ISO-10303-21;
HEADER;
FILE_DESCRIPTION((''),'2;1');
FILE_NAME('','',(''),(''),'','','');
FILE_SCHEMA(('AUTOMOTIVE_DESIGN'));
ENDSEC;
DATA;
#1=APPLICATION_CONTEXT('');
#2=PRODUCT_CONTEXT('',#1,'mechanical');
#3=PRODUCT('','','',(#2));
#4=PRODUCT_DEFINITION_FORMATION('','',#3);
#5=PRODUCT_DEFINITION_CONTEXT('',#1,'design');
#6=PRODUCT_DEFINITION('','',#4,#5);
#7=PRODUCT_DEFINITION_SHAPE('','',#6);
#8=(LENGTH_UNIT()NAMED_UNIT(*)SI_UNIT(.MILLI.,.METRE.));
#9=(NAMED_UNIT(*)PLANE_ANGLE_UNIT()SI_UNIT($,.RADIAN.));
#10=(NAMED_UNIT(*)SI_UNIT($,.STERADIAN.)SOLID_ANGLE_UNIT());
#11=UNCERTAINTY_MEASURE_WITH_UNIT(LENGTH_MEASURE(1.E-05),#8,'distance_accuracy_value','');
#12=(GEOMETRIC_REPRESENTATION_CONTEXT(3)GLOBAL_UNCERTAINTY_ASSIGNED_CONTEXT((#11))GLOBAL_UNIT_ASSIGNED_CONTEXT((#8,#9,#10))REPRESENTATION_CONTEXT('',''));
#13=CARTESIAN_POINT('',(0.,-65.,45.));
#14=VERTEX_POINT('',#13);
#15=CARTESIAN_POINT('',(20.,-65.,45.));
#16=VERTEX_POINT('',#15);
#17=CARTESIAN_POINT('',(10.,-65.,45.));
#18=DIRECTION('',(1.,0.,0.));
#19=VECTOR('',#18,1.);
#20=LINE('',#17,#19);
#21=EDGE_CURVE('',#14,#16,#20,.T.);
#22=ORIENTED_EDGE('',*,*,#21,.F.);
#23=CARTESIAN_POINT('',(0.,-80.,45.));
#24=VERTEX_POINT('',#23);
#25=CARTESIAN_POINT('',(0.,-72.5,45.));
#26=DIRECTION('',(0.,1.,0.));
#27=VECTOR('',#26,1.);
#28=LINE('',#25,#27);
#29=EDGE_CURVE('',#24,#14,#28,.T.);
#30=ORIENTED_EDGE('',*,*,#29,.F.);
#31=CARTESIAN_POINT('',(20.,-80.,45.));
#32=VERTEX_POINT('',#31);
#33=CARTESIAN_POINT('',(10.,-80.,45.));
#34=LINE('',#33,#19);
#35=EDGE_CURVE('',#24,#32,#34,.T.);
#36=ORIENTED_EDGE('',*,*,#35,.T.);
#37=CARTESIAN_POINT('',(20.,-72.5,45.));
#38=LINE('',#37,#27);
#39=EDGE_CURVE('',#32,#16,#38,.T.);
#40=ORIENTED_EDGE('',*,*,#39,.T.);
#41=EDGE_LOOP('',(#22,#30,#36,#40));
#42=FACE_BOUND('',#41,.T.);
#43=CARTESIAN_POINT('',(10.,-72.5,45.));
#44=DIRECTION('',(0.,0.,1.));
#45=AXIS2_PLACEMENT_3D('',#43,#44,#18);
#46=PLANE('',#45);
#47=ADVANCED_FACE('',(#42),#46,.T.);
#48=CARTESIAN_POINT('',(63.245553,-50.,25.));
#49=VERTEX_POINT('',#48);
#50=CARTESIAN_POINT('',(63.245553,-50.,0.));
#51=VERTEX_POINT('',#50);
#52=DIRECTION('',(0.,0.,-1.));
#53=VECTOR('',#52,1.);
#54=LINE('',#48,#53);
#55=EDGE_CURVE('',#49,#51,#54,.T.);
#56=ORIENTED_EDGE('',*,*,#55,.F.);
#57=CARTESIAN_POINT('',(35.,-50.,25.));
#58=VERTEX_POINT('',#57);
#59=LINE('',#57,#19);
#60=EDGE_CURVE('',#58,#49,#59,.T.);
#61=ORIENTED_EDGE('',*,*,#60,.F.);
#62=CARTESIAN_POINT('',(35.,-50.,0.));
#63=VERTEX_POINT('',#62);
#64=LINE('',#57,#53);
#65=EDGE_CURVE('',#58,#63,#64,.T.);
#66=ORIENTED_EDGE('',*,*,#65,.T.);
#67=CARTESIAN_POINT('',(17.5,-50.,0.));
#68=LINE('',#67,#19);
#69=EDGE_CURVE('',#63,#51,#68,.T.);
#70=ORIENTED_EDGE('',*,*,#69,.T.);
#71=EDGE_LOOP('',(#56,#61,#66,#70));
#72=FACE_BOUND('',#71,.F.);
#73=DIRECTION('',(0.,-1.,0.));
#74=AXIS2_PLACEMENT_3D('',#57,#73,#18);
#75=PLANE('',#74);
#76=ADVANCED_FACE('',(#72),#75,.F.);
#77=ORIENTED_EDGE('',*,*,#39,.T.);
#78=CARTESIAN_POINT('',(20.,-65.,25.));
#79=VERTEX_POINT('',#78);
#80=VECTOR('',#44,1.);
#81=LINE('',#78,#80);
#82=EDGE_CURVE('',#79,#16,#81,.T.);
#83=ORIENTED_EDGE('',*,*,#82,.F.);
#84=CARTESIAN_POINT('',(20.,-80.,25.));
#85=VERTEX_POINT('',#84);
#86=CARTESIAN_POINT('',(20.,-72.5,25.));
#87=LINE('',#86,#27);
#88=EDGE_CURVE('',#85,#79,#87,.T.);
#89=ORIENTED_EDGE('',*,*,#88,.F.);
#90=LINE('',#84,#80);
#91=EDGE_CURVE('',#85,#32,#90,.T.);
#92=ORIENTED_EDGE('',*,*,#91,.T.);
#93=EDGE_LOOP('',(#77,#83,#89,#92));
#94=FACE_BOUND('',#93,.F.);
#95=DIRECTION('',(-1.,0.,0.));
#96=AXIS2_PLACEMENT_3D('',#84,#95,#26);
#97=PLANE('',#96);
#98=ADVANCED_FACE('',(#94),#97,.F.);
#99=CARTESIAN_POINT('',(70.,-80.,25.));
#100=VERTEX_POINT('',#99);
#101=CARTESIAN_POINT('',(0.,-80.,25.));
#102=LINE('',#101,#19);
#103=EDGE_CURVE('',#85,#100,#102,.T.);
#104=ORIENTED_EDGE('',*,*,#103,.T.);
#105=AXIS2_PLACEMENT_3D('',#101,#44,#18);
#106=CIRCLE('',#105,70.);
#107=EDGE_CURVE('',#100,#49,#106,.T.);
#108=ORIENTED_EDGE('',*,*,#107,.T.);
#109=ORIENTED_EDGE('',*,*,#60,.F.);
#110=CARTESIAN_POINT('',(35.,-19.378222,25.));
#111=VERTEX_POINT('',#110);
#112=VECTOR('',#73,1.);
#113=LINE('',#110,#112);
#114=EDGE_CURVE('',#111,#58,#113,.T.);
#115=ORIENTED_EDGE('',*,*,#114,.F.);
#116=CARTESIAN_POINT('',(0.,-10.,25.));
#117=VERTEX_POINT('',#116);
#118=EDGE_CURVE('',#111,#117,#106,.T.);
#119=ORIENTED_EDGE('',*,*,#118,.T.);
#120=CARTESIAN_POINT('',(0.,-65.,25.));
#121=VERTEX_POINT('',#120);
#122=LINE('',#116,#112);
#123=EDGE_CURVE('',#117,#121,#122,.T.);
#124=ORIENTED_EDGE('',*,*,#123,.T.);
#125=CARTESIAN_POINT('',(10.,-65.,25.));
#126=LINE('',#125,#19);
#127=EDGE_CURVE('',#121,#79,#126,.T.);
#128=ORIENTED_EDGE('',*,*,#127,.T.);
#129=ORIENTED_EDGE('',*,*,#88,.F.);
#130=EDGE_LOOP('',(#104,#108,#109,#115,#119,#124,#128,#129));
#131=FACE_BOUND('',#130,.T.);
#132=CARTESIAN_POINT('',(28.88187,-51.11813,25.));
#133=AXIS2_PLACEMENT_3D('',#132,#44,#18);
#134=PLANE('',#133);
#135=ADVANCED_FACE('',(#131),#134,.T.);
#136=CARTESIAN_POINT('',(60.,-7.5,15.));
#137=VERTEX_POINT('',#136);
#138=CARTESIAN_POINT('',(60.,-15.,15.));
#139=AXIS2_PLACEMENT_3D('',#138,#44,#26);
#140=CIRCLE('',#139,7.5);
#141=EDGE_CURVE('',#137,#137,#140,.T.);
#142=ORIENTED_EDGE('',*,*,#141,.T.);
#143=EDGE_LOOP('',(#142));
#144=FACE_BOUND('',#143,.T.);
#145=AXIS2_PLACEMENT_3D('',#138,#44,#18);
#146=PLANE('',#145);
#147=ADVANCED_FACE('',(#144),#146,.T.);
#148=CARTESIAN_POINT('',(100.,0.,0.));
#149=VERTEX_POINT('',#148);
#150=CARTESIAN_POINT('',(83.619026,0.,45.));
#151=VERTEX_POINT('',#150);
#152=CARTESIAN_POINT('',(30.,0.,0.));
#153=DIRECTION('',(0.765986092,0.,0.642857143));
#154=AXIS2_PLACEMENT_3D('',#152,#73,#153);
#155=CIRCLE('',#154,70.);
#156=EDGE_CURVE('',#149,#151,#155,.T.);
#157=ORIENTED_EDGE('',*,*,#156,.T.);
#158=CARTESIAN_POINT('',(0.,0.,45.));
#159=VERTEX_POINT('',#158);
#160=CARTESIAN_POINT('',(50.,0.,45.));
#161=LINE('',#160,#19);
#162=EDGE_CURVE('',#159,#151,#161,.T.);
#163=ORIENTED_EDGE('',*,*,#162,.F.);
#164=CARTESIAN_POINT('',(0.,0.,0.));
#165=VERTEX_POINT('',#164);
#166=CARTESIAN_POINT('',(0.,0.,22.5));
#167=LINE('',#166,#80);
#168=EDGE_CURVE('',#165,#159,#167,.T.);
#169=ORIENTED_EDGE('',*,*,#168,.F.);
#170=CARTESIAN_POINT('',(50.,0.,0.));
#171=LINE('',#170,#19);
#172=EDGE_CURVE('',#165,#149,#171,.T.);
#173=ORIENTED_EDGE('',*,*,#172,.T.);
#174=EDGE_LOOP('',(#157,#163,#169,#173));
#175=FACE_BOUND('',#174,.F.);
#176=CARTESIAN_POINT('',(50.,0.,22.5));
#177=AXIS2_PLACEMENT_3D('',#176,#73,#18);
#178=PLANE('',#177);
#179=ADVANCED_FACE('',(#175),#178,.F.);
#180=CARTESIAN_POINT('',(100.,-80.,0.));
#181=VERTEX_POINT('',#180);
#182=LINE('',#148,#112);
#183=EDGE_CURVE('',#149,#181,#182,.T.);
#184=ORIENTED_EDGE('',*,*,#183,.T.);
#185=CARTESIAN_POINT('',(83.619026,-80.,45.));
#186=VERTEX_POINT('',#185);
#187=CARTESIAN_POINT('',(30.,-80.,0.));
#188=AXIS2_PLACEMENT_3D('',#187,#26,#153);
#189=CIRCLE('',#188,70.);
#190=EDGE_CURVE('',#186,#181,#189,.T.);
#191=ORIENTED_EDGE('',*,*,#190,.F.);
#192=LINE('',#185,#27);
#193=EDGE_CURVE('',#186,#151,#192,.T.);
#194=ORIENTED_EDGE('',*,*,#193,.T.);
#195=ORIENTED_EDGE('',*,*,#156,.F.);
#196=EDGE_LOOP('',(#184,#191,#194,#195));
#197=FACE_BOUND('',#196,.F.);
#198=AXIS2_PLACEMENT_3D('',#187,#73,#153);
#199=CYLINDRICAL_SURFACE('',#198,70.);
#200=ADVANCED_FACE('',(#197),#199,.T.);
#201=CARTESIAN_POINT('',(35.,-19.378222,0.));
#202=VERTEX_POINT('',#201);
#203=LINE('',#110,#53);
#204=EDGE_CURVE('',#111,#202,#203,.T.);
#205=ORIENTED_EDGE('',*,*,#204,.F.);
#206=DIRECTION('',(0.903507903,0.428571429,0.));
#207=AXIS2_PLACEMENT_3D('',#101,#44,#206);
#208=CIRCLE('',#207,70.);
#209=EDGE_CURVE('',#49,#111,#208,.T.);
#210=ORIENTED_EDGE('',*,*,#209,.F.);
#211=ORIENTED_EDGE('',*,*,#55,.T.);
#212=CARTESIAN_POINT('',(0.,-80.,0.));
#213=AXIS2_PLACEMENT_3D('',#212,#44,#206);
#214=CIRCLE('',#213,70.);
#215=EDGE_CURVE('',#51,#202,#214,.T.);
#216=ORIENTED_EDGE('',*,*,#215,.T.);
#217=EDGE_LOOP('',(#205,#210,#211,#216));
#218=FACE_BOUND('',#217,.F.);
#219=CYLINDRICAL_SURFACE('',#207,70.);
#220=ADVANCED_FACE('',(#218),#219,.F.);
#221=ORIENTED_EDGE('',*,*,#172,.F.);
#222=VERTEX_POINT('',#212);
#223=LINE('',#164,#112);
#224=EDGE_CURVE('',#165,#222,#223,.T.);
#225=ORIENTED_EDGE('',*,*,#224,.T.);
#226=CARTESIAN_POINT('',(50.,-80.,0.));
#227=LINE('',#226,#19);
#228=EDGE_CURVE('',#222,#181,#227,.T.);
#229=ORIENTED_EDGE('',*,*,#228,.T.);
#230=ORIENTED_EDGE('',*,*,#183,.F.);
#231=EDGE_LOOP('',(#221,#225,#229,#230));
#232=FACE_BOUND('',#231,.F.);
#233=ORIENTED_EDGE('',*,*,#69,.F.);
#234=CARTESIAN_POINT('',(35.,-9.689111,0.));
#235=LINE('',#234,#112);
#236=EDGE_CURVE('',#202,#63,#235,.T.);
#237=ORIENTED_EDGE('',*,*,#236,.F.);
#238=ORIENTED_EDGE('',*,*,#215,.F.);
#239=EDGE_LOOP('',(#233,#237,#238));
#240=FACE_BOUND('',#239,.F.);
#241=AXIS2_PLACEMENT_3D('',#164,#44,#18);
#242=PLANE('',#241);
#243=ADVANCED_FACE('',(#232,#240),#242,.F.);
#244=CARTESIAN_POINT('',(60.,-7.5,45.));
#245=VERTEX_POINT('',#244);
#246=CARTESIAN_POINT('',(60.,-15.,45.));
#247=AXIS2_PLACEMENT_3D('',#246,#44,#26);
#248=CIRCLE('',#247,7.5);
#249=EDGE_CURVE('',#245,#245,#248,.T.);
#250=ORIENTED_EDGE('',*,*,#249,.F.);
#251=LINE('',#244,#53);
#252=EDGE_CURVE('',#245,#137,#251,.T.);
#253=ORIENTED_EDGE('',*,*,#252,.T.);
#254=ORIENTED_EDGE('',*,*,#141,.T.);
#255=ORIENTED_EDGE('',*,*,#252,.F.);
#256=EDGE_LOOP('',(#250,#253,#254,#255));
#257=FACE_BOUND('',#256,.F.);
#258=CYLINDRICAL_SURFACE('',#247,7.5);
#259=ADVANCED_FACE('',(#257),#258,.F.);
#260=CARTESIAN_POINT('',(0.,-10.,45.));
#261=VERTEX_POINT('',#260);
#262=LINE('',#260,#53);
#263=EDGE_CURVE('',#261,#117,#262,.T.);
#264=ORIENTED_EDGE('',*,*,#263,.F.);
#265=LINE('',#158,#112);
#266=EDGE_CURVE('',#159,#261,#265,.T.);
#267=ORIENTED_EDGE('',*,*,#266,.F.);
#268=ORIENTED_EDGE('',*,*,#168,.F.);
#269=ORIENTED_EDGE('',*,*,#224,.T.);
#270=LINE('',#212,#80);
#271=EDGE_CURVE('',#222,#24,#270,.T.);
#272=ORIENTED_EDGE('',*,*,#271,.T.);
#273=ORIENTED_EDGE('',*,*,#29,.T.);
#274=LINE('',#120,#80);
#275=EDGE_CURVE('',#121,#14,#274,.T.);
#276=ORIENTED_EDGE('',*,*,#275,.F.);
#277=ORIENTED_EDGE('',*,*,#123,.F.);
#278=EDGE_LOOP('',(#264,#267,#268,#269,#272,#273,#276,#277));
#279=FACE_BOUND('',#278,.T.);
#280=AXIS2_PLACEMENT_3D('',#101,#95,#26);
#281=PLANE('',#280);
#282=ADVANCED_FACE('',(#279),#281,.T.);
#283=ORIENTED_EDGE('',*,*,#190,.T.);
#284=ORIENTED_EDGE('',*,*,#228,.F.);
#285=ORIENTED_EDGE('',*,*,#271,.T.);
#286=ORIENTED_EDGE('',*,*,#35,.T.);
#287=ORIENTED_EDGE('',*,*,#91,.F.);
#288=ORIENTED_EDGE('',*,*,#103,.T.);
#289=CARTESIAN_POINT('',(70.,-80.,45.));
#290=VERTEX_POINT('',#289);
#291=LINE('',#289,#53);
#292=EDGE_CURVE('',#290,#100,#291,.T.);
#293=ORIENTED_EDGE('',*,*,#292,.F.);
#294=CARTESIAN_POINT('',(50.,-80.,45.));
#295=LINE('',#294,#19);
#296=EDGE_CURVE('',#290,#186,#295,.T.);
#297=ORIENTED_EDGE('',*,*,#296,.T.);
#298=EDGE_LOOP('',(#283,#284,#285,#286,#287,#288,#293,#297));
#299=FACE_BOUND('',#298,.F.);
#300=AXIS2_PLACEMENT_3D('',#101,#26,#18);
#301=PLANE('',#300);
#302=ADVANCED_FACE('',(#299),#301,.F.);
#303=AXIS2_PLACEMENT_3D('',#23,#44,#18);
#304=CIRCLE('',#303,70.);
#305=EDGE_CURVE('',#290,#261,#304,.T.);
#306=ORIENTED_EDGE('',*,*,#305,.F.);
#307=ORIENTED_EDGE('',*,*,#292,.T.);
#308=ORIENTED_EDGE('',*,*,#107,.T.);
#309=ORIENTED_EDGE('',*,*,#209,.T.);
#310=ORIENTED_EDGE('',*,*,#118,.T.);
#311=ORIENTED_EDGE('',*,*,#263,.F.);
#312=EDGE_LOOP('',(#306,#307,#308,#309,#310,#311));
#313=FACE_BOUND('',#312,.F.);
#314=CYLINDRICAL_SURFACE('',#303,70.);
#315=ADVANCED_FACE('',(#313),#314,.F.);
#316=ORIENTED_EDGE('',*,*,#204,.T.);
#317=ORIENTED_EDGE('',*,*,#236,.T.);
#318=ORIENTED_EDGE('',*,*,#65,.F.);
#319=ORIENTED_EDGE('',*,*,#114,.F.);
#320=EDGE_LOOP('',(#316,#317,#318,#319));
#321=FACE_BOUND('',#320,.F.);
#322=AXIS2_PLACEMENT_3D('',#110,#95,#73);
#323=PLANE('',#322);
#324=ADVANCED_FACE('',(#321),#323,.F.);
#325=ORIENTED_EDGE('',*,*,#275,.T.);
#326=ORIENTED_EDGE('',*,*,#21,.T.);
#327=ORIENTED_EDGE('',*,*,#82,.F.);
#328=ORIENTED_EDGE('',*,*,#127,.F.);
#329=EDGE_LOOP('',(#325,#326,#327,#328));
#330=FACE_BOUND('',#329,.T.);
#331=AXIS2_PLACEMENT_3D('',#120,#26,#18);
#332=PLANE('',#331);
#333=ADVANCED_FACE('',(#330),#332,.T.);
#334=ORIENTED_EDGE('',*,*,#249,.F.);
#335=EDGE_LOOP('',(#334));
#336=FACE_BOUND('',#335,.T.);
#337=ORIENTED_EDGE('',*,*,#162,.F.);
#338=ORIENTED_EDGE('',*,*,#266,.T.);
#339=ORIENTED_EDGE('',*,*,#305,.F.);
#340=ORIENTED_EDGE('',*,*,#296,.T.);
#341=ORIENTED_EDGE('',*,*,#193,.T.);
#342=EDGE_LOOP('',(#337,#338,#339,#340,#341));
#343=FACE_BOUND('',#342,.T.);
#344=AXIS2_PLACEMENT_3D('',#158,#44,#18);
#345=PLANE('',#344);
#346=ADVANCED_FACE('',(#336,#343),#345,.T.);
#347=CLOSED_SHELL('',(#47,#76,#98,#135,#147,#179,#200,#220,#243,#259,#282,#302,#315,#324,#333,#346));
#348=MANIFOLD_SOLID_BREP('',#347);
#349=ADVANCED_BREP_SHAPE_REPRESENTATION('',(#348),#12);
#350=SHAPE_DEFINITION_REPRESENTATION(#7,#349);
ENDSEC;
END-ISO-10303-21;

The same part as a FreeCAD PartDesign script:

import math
import FreeCAD as App
import Part
import Sketcher
Q = App.Units.Quantity

doc = App.newDocument("Part")
body = doc.addObject("PartDesign::Body", "Body")

# Sketch on XZ plane
sketch1 = body.newObject("Sketcher::SketchObject", "Sketch")
sketch1.AttachmentSupport = (doc.getObject("XZ_Plane"), [""])
sketch1.MapMode = "FlatFace"
sketch1.addGeometry(Part.LineSegment(App.Vector(0, 45, 0), App.Vector(0, 0, 0)), False)
sketch1.addGeometry(Part.LineSegment(App.Vector(0, 0, 0), App.Vector(100, 0, 0)), False)
sketch1.addGeometry(Part.LineSegment(App.Vector(100, 0, 0), App.Vector(100, 45, 0)), False)
sketch1.addGeometry(Part.LineSegment(App.Vector(100, 45, 0), App.Vector(0, 45, 0)), False)
sketch1.addConstraint(Sketcher.Constraint("Coincident", 0, 2, 1, 1))
sketch1.addConstraint(Sketcher.Constraint("Coincident", 1, 2, 2, 1))
sketch1.addConstraint(Sketcher.Constraint("Coincident", 2, 2, 3, 1))
sketch1.addConstraint(Sketcher.Constraint("Coincident", 3, 2, 0, 1))
sketch1.addConstraint(Sketcher.Constraint("Vertical", 0))
sketch1.addConstraint(Sketcher.Constraint("Horizontal", 1))
sketch1.addConstraint(Sketcher.Constraint("Vertical", 2))
sketch1.addConstraint(Sketcher.Constraint("Horizontal", 3))
sketch1.addConstraint(Sketcher.Constraint("Coincident", 0, 2, -1, 1))
sketch1.addConstraint(Sketcher.Constraint("DistanceX", 1, 1, 1, 2, Q("100 mm")))
sketch1.addConstraint(Sketcher.Constraint("DistanceY", 0, 2, 0, 1, Q("45 mm")))
pad1 = body.newObject("PartDesign::Pad", "Pad")
pad1.Profile = sketch1
pad1.Length = 80

# Sketch on XY plane
sketch2 = body.newObject("Sketcher::SketchObject", "Sketch001")
sketch2.AttachmentSupport = (doc.getObject("XY_Plane"), [""])
sketch2.MapMode = "FlatFace"
sketch2.AttachmentOffset = App.Placement(App.Vector(0, 0, 45), App.Rotation())
sketch2.addGeometry(Part.LineSegment(App.Vector(0, -80, 0), App.Vector(70, -80, 0)), False)
sketch2.addGeometry(Part.ArcOfCircle(Part.Circle(App.Vector(0, -80, 0), App.Vector(0, 0, 1), 70), math.radians(0), math.radians(90)), False)
sketch2.addGeometry(Part.LineSegment(App.Vector(0, -10, 0), App.Vector(0, -80, 0)), False)
sketch2.addConstraint(Sketcher.Constraint("Coincident", 0, 2, 1, 1))
sketch2.addConstraint(Sketcher.Constraint("Coincident", 1, 2, 2, 1))
sketch2.addConstraint(Sketcher.Constraint("Coincident", 2, 2, 0, 1))
sketch2.addConstraint(Sketcher.Constraint("Horizontal", 0))
sketch2.addConstraint(Sketcher.Constraint("Vertical", 2))
sketch2.addConstraint(Sketcher.Constraint("Coincident", 2, 2, 1, 3))
sketch2.addConstraint(Sketcher.Constraint("PointOnObject", 1, 3, -2))
sketch2.addConstraint(Sketcher.Constraint("Radius", 1, Q("70 mm")))
sketch2.addConstraint(Sketcher.Constraint("DistanceY", 1, 3, -1, 1, Q("80 mm")))
pocket1 = body.newObject("PartDesign::Pocket", "Pocket")
pocket1.Profile = sketch2
pocket1.Length = 20

# Sketch on XY plane
sketch3 = body.newObject("Sketcher::SketchObject", "Sketch002")
sketch3.AttachmentSupport = (doc.getObject("XY_Plane"), [""])
sketch3.MapMode = "FlatFace"
sketch3.AttachmentOffset = App.Placement(App.Vector(0, 0, 45), App.Rotation())
sketch3.addGeometry(Part.Circle(App.Vector(60, -15, 0), App.Vector(0, 0, 1), 7.5), False)
sketch3.addConstraint(Sketcher.Constraint("Diameter", 0, Q("15 mm")))
sketch3.addConstraint(Sketcher.Constraint("DistanceX", -1, 1, 0, 3, Q("60 mm")))
sketch3.addConstraint(Sketcher.Constraint("DistanceY", 0, 3, -1, 1, Q("15 mm")))
pocket2 = body.newObject("PartDesign::Pocket", "Pocket001")
pocket2.Profile = sketch3
pocket2.Length = 30

# Sketch on XY plane
sketch4 = body.newObject("Sketcher::SketchObject", "Sketch003")
sketch4.AttachmentSupport = (doc.getObject("XY_Plane"), [""])
sketch4.MapMode = "FlatFace"
sketch4.AttachmentOffset = App.Placement(App.Vector(0, 0, 25), App.Rotation())
sketch4.addGeometry(Part.LineSegment(App.Vector(0, -65, 0), App.Vector(0, -80, 0)), False)
sketch4.addGeometry(Part.LineSegment(App.Vector(0, -80, 0), App.Vector(20, -80, 0)), False)
sketch4.addGeometry(Part.LineSegment(App.Vector(20, -80, 0), App.Vector(20, -65, 0)), False)
sketch4.addGeometry(Part.LineSegment(App.Vector(20, -65, 0), App.Vector(0, -65, 0)), False)
sketch4.addConstraint(Sketcher.Constraint("Coincident", 0, 2, 1, 1))
sketch4.addConstraint(Sketcher.Constraint("Coincident", 1, 2, 2, 1))
sketch4.addConstraint(Sketcher.Constraint("Coincident", 2, 2, 3, 1))
sketch4.addConstraint(Sketcher.Constraint("Coincident", 3, 2, 0, 1))
sketch4.addConstraint(Sketcher.Constraint("Vertical", 0))
sketch4.addConstraint(Sketcher.Constraint("Horizontal", 1))
sketch4.addConstraint(Sketcher.Constraint("Vertical", 2))
sketch4.addConstraint(Sketcher.Constraint("Horizontal", 3))
sketch4.addConstraint(Sketcher.Constraint("PointOnObject", 0, 2, -2))
sketch4.addConstraint(Sketcher.Constraint("DistanceX", 1, 1, 1, 2, Q("20 mm")))
sketch4.addConstraint(Sketcher.Constraint("DistanceY", 0, 2, 0, 1, Q("15 mm")))
sketch4.addConstraint(Sketcher.Constraint("DistanceY", 0, 2, -1, 1, Q("80 mm")))
pad2 = body.newObject("PartDesign::Pad", "Pad001")
pad2.Profile = sketch4
pad2.Length = 20

# Sketch on XY plane
sketch5 = body.newObject("Sketcher::SketchObject", "Sketch004")
sketch5.AttachmentSupport = (doc.getObject("XY_Plane"), [""])
sketch5.MapMode = "FlatFace"
sketch5.AttachmentOffset = App.Placement(App.Vector(0, 0, 25), App.Rotation())
sketch5.addGeometry(Part.LineSegment(App.Vector(35, -19.378222, 0), App.Vector(35, -50, 0)), False)
sketch5.addGeometry(Part.LineSegment(App.Vector(35, -50, 0), App.Vector(63.245553, -50, 0)), False)
sketch5.addGeometry(Part.ArcOfCircle(Part.Circle(App.Vector(0, -80, 0), App.Vector(0, 0, 1), 70), math.radians(25.376934), math.radians(60)), False)
sketch5.addConstraint(Sketcher.Constraint("Coincident", 0, 2, 1, 1))
sketch5.addConstraint(Sketcher.Constraint("Coincident", 1, 2, 2, 1))
sketch5.addConstraint(Sketcher.Constraint("Coincident", 2, 2, 0, 1))
sketch5.addConstraint(Sketcher.Constraint("Vertical", 0))
sketch5.addConstraint(Sketcher.Constraint("Horizontal", 1))
sketch5.addConstraint(Sketcher.Constraint("PointOnObject", 2, 3, -2))
sketch5.addConstraint(Sketcher.Constraint("Radius", 2, Q("70 mm")))
sketch5.addConstraint(Sketcher.Constraint("DistanceY", 2, 3, -1, 1, Q("80 mm")))
sketch5.addConstraint(Sketcher.Constraint("DistanceX", -1, 1, 0, 2, Q("35 mm")))
sketch5.addConstraint(Sketcher.Constraint("DistanceY", 0, 2, -1, 1, Q("50 mm")))
pocket3 = body.newObject("PartDesign::Pocket", "Pocket002")
pocket3.Profile = sketch5
pocket3.Type = "ThroughAll"

# Sketch on XZ plane
sketch6 = body.newObject("Sketcher::SketchObject", "Sketch005")
sketch6.AttachmentSupport = (doc.getObject("XZ_Plane"), [""])
sketch6.MapMode = "FlatFace"
sketch6.AttachmentOffset = App.Placement(App.Vector(0, 0, 80), App.Rotation())
sketch6.addGeometry(Part.ArcOfCircle(Part.Circle(App.Vector(30, 0, 0), App.Vector(0, 0, 1), 70), math.radians(0), math.radians(40.005201)), False)
sketch6.addGeometry(Part.LineSegment(App.Vector(100, 0, 0), App.Vector(100, 45, 0)), False)
sketch6.addGeometry(Part.LineSegment(App.Vector(100, 45, 0), App.Vector(83.619026, 45, 0)), False)
sketch6.addConstraint(Sketcher.Constraint("Tangent", 0, 1, 1, 1))
sketch6.addConstraint(Sketcher.Constraint("Coincident", 1, 2, 2, 1))
sketch6.addConstraint(Sketcher.Constraint("Coincident", 2, 2, 0, 2))
sketch6.addConstraint(Sketcher.Constraint("Vertical", 1))
sketch6.addConstraint(Sketcher.Constraint("Horizontal", 2))
sketch6.addConstraint(Sketcher.Constraint("PointOnObject", 0, 3, -1))
sketch6.addConstraint(Sketcher.Constraint("Radius", 0, Q("70 mm")))
sketch6.addConstraint(Sketcher.Constraint("DistanceY", 1, 1, 1, 2, Q("45 mm")))
sketch6.addConstraint(Sketcher.Constraint("DistanceX", -1, 1, 0, 3, Q("30 mm")))
pocket4 = body.newObject("PartDesign::Pocket", "Pocket003")
pocket4.Profile = sketch6
pocket4.Type = "ThroughAll"

doc.recompute()
